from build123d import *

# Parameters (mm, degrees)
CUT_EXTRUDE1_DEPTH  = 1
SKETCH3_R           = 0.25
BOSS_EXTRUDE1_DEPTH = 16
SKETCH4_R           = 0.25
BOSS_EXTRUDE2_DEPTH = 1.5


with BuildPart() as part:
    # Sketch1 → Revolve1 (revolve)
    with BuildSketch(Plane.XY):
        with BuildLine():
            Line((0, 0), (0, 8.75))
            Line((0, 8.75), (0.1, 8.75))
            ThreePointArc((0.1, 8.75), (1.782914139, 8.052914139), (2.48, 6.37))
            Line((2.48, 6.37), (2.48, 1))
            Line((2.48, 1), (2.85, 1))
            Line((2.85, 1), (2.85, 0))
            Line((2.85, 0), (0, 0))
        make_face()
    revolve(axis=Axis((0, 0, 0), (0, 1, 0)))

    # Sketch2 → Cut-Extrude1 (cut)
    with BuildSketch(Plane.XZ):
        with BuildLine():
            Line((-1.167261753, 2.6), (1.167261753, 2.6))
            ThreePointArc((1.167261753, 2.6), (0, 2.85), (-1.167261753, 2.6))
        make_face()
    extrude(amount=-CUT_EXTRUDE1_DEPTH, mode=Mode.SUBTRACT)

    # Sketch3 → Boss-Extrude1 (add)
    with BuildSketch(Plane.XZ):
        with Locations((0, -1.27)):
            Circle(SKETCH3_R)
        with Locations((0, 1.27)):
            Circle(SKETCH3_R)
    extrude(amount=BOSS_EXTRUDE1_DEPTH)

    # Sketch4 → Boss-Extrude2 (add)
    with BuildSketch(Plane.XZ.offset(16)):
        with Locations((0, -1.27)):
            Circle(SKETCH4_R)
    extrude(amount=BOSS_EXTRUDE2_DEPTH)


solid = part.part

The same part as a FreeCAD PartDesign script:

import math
import FreeCAD as App
import Part
import Sketcher
from FreeCAD import Vector
Q = App.Units.Quantity

doc = App.newDocument("Part")
body = doc.addObject("PartDesign::Body", "Body")

sketch1 = doc.addObject("Sketcher::SketchObject", "Sketch")
body.addObject(sketch1)
sketch1.AttachmentSupport = (doc.XY_Plane, [""])
sketch1.MapMode = "FlatFace"
sketch1.addGeometry(Part.LineSegment(Vector(0, 8.75, 0), Vector(0, 0, 0)), False)
sketch1.addGeometry(Part.LineSegment(Vector(0, 0, 0), Vector(2.85, 0, 0)), False)
sketch1.addGeometry(Part.LineSegment(Vector(2.85, 0, 0), Vector(2.85, 1, 0)), False)
sketch1.addGeometry(Part.LineSegment(Vector(2.85, 1, 0), Vector(2.48, 1, 0)), False)
sketch1.addGeometry(Part.LineSegment(Vector(2.48, 1, 0), Vector(2.48, 6.37, 0)), False)
sketch1.addGeometry(Part.ArcOfCircle(Part.Circle(Vector(0.1, 6.37, 0), Vector(0, 0, 1), 2.38), math.radians(0), math.radians(90)), False)
sketch1.addGeometry(Part.LineSegment(Vector(0.1, 8.75, 0), Vector(0, 8.75, 0)), False)
sketch1.addConstraint(Sketcher.Constraint("Coincident", 0, 2, 1, 1))
sketch1.addConstraint(Sketcher.Constraint("Coincident", 1, 2, 2, 1))
sketch1.addConstraint(Sketcher.Constraint("Coincident", 2, 2, 3, 1))
sketch1.addConstraint(Sketcher.Constraint("Coincident", 3, 2, 4, 1))
sketch1.addConstraint(Sketcher.Constraint("Tangent", 4, 2, 5, 1))
sketch1.addConstraint(Sketcher.Constraint("Tangent", 5, 2, 6, 1))
sketch1.addConstraint(Sketcher.Constraint("Coincident", 6, 2, 0, 1))
sketch1.addConstraint(Sketcher.Constraint("Vertical", 0))
sketch1.addConstraint(Sketcher.Constraint("Horizontal", 1))
sketch1.addConstraint(Sketcher.Constraint("Vertical", 2))
sketch1.addConstraint(Sketcher.Constraint("Horizontal", 3))
sketch1.addConstraint(Sketcher.Constraint("Vertical", 4))
sketch1.addConstraint(Sketcher.Constraint("Horizontal", 6))
sketch1.addConstraint(Sketcher.Constraint("Coincident", 0, 2, -1, 1))
sketch1.addConstraint(Sketcher.Constraint("DistanceY", 2, 1, 2, 2, Q("1 mm")))
sketch1.addConstraint(Sketcher.Constraint("Radius", 5, Q("2.38 mm")))
sketch1.addConstraint(Sketcher.Constraint("DistanceX", 6, 2, 6, 1, Q("0.1 mm")))
sketch1.addConstraint(Sketcher.Constraint("DistanceX", 1, 1, 1, 2, Q("2.85 mm")))
sketch1.addConstraint(Sketcher.Constraint("DistanceY", 0, 2, 0, 1, Q("8.75 mm")))
revolution = doc.addObject("PartDesign::Revolution", "Revolution")
body.addObject(revolution)
revolution.Profile = sketch1
revolution.ReferenceAxis = (sketch1, ["V_Axis"])
revolution.Angle = 360

sketch2 = doc.addObject("Sketcher::SketchObject", "Sketch001")
body.addObject(sketch2)
sketch2.AttachmentSupport = (doc.XZ_Plane, [""])
sketch2.MapMode = "FlatFace"
sketch2.addGeometry(Part.LineSegment(Vector(-1.2, 2.6, 0), Vector(1.2, 2.6, 0)), False)
sketch2.addGeometry(Part.ArcOfCircle(Part.Circle(Vector(0, 0, 0), Vector(0, 0, 1), 2.9), math.radians(66), math.radians(114)), False)
sketch2.addConstraint(Sketcher.Constraint("Coincident", 0, 1, 1, 2))
sketch2.addConstraint(Sketcher.Constraint("Coincident", 1, 1, 0, 2))
sketch2.addConstraint(Sketcher.Constraint("Horizontal", 0))
sketch2.addConstraint(Sketcher.Constraint("Coincident", 1, 3, -1, 1))
sketch2.addConstraint(Sketcher.Constraint("Radius", 1, Q("2.85 mm")))
sketch2.addConstraint(Sketcher.Constraint("DistanceY", -1, 1, 0, 1, Q("2.6 mm")))
pocket1 = doc.addObject("PartDesign::Pocket", "Pocket")
body.addObject(pocket1)
pocket1.Profile = sketch2
pocket1.Length = 1

sketch3 = doc.addObject("Sketcher::SketchObject", "Sketch002")
body.addObject(sketch3)
sketch3.AttachmentSupport = (doc.XZ_Plane, [""])
sketch3.MapMode = "FlatFace"
sketch3.addGeometry(Part.Circle(Vector(0, -1.27, 0), Vector(0, 0, 1), 0.25), False)
sketch3.addGeometry(Part.Circle(Vector(0, 1.27, 0), Vector(0, 0, 1), 0.25), False)
sketch3.addConstraint(Sketcher.Constraint("Equal", 0, 1))
sketch3.addConstraint(Sketcher.Constraint("Symmetric", 0, 3, 1, 3, -1, 1))
sketch3.addConstraint(Sketcher.Constraint("PointOnObject", 0, 3, -2))
sketch3.addConstraint(Sketcher.Constraint("Diameter", 0, Q("0.5 mm")))
sketch3.addConstraint(Sketcher.Constraint("DistanceY", 0, 3, -1, 1, Q("1.27 mm")))
pad1 = doc.addObject("PartDesign::Pad", "Pad")
body.addObject(pad1)
pad1.Profile = sketch3
pad1.Length = 16

sketch4 = doc.addObject("Sketcher::SketchObject", "Sketch003")
body.addObject(sketch4)
sketch4.AttachmentSupport = (doc.XZ_Plane, [""])
sketch4.MapMode = "FlatFace"
sketch4.AttachmentOffset = App.Placement(Vector(0, 0, 16), App.Rotation())
sketch4.addGeometry(Part.Circle(Vector(0, -1.27, 0), Vector(0, 0, 1), 0.25), False)
sketch4.addConstraint(Sketcher.Constraint("PointOnObject", 0, 3, -2))
sketch4.addConstraint(Sketcher.Constraint("Diameter", 0, Q("0.5 mm")))
sketch4.addConstraint(Sketcher.Constraint("DistanceY", 0, 3, -1, 1, Q("1.27 mm")))
pad2 = doc.addObject("PartDesign::Pad", "Pad001")
body.addObject(pad2)
pad2.Profile = sketch4
pad2.Length = 1.5

doc.recompute()
